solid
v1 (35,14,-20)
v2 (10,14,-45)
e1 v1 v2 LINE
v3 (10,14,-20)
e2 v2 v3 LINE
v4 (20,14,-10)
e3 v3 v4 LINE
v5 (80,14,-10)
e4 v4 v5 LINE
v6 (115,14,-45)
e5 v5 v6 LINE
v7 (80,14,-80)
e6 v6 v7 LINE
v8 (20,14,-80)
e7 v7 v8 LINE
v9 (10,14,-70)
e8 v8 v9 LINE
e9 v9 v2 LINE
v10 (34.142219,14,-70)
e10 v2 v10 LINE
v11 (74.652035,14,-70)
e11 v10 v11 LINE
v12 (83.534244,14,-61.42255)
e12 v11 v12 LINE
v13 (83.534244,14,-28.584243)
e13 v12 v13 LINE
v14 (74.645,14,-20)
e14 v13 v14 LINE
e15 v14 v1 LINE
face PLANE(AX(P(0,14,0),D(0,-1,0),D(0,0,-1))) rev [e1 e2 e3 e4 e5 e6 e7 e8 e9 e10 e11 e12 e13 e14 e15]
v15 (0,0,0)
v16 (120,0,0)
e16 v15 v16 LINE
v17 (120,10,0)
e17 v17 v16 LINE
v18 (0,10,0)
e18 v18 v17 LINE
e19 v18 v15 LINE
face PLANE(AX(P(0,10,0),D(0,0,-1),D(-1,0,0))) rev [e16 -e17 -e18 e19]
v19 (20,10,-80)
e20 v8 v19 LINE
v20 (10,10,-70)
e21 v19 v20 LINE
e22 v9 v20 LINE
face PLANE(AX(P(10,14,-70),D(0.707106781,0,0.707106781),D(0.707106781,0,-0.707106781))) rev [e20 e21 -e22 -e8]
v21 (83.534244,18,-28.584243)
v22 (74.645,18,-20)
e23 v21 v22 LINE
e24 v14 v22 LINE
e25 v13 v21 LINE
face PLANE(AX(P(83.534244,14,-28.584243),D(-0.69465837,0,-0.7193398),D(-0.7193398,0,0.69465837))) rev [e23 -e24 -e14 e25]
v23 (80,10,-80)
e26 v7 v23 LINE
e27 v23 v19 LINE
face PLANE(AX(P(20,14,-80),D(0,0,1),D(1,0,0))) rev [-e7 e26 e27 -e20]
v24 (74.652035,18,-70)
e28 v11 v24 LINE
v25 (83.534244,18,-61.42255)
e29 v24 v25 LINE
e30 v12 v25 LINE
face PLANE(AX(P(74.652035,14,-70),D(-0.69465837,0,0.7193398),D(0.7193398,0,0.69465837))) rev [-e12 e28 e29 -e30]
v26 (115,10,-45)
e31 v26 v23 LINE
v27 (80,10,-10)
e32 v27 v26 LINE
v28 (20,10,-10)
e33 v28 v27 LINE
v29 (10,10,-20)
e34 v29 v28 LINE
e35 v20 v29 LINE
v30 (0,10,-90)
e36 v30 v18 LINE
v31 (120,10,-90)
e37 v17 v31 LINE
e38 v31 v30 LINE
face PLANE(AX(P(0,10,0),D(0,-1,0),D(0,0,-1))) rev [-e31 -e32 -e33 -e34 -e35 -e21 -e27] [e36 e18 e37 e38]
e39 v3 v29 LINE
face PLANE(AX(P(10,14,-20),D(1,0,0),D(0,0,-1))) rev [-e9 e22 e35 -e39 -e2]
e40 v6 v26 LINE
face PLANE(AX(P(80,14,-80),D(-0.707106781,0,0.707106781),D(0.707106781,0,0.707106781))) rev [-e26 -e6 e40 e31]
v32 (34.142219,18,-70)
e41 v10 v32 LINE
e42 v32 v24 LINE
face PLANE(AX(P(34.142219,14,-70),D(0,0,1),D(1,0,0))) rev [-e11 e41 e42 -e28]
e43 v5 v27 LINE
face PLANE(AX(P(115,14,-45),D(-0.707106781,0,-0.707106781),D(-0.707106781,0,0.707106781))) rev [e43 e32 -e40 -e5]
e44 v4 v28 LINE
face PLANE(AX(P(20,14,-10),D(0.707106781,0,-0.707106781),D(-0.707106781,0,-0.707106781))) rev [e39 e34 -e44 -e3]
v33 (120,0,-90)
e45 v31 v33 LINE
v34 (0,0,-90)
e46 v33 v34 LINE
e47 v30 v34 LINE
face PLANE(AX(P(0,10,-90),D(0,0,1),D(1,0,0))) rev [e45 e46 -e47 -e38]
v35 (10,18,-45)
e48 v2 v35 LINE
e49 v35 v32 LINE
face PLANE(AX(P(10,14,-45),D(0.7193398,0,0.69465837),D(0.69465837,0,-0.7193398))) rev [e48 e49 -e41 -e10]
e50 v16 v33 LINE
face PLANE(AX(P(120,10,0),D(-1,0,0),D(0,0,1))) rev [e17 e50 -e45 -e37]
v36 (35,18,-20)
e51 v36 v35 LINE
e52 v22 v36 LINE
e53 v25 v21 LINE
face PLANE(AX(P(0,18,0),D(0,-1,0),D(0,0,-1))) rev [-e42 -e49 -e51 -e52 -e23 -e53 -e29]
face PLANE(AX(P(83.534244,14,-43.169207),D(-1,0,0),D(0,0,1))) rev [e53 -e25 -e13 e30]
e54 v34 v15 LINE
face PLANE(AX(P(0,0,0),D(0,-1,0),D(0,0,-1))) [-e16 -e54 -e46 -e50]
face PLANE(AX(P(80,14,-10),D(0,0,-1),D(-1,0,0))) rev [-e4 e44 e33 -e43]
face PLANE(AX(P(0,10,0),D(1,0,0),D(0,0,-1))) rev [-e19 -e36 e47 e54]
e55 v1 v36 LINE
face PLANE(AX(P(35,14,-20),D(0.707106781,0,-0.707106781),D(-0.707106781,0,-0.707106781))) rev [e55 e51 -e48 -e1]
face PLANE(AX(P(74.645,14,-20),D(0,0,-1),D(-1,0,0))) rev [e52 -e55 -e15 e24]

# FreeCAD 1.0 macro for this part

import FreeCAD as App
import Part
import Sketcher
Q = App.Units.Quantity


def add_polygon(sketch, points):
    """Adds a closed chain of lines whose ends are joined by coincident constraints."""
    first, n = sketch.GeometryCount, len(points)
    for a, b in zip(points, points[1:] + points[:1]):
        sketch.addGeometry(Part.LineSegment(App.Vector(*a, 0), App.Vector(*b, 0)), False)
    for i in range(n):
        sketch.addConstraint(Sketcher.Constraint("Coincident", first + i, 2, first + (i + 1) % n, 1))

doc = App.newDocument("Part")
params = doc.addObject("Spreadsheet::Sheet", "Params")
for row, (alias, value) in enumerate([
    ("sketch1_width", "120 mm"),
    ("sketch1_height", "90 mm"),
    ("pad1_length", "10 mm"),
    ("sketch2_width", "60 mm"),
    ("sketch2_height", "50 mm"),
    ("pad2_length", "4 mm"),
    ("pad3_length", "4 mm"),
], start=1):
    params.set(f"A{row}", alias)
    params.set(f"B{row}", "=" + value)
    params.setAlias(f"B{row}", alias)

body = doc.addObject("PartDesign::Body", "Body")

# Sketch on XZ plane
sketch1 = body.newObject("Sketcher::SketchObject", "Sketch")
sketch1.AttachmentSupport = (doc.getObject("XZ_Plane"), [""])
sketch1.MapMode = "FlatFace"
add_polygon(sketch1, [(0, -90), (0, 0), (120, 0), (120, -90)])  # lines 0-3
sketch1.addConstraint([
    Sketcher.Constraint("Vertical", 0),
    Sketcher.Constraint("Horizontal", 1),
    Sketcher.Constraint("Vertical", 2),
    Sketcher.Constraint("Horizontal", 3),
    Sketcher.Constraint("Coincident", 0, 2, -1, 1),
    Sketcher.Constraint("DistanceX", 1, 1, 1, 2, Q("120 mm")),
    Sketcher.Constraint("DistanceY", 0, 1, 0, 2, Q("90 mm")),
])
sketch1.setExpression("Constraints[9]", "Params.sketch1_width")
sketch1.setExpression("Constraints[10]", "Params.sketch1_height")
pad1 = body.newObject("PartDesign::Pad", "Pad")
pad1.Profile = sketch1
pad1.setExpression("Length", "Params.pad1_length")
pad1.Reversed = True

# Sketch on XZ plane
sketch2 = body.newObject("Sketcher::SketchObject", "Sketch001")
sketch2.AttachmentSupport = (doc.getObject("XZ_Plane"), [""])
sketch2.MapMode = "FlatFace"
sketch2.AttachmentOffset = App.Placement(App.Vector(0, 0, -10), App.Rotation())
add_polygon(sketch2, [(20, -80), (10, -70), (10, -20), (20, -10), (80, -10), (115, -45), (80, -80)])  # lines 0-6
sketch2.addConstraint([
    Sketcher.Constraint("Vertical", 1),
    Sketcher.Constraint("Horizontal", 3),
    Sketcher.Constraint("Horizontal", 6),
    Sketcher.Constraint("Perpendicular", 0, 2),
    Sketcher.Constraint("Perpendicular", 2, 4),
    Sketcher.Constraint("Perpendicular", 4, 5),
    Sketcher.Constraint("Vertical", 3, 2, 5, 2),
    Sketcher.Constraint("Vertical", 2, 2, 6, 2),
    Sketcher.Constraint("Equal", 0, 2),
    Sketcher.Constraint("DistanceX", 3, 1, 3, 2, Q("60 mm")),
    Sketcher.Constraint("DistanceY", 1, 1, 1, 2, Q("50 mm")),
    Sketcher.Constraint("DistanceX", -1, 1, 0, 2, Q("10 mm")),
    Sketcher.Constraint("DistanceY", 0, 2, -1, 1, Q("70 mm")),
    Sketcher.Constraint("DistanceX", -1, 1, 2, 2, Q("20 mm")),
])
sketch2.setExpression("Constraints[16]", "Params.sketch2_width")
sketch2.setExpression("Constraints[17]", "Params.sketch2_height")
pad2 = body.newObject("PartDesign::Pad", "Pad001")
pad2.Profile = sketch2
pad2.setExpression("Length", "Params.pad2_length")
pad2.Reversed = True

# Sketch on XZ plane
sketch3 = body.newObject("Sketcher::SketchObject", "Sketch002")
sketch3.AttachmentSupport = (doc.getObject("XZ_Plane"), [""])
sketch3.MapMode = "FlatFace"
sketch3.AttachmentOffset = App.Placement(App.Vector(0, 0, -18), App.Rotation())
add_polygon(sketch3, [(10, -45), (34.142219, -70), (74.652035, -70), (83.534244, -61.42255), (83.534244, -28.584243), (74.645, -20), (35, -20)])  # lines 0-6
sketch3.addConstraint([
    Sketcher.Constraint("Horizontal", 1),
    Sketcher.Constraint("Vertical", 3),
    Sketcher.Constraint("Horizontal", 5),
    Sketcher.Constraint("Perpendicular", 0, 2),
    Sketcher.Constraint("Angle", 0, Q("-46 deg")),
    Sketcher.Constraint("Angle", 4, Q("136 deg")),
    Sketcher.Constraint("Angle", 6, Q("-135 deg")),
    Sketcher.Constraint("DistanceY", 0, 2, -1, 1, Q("70 mm")),
    Sketcher.Constraint("DistanceY", 4, 2, -1, 1, Q("20 mm")),
    Sketcher.Constraint("DistanceX", -1, 1, 5, 2, Q("35 mm")),
    Sketcher.Constraint("DistanceX", -1, 1, 6, 2, Q("10 mm")),
    Sketcher.Constraint("DistanceX", 5, 2, 5, 1, Q("39.645 mm")),
    Sketcher.Constraint("DistanceX", 1, 1, 1, 2, Q("40.509815 mm")),
    Sketcher.Constraint("DistanceY", 3, 1, 3, 2, Q("32.838307 mm")),
])
pad3 = body.newObject("PartDesign::Pad", "Pad002")
pad3.Profile = sketch3
pad3.setExpression("Length", "Params.pad3_length")

doc.recompute()
